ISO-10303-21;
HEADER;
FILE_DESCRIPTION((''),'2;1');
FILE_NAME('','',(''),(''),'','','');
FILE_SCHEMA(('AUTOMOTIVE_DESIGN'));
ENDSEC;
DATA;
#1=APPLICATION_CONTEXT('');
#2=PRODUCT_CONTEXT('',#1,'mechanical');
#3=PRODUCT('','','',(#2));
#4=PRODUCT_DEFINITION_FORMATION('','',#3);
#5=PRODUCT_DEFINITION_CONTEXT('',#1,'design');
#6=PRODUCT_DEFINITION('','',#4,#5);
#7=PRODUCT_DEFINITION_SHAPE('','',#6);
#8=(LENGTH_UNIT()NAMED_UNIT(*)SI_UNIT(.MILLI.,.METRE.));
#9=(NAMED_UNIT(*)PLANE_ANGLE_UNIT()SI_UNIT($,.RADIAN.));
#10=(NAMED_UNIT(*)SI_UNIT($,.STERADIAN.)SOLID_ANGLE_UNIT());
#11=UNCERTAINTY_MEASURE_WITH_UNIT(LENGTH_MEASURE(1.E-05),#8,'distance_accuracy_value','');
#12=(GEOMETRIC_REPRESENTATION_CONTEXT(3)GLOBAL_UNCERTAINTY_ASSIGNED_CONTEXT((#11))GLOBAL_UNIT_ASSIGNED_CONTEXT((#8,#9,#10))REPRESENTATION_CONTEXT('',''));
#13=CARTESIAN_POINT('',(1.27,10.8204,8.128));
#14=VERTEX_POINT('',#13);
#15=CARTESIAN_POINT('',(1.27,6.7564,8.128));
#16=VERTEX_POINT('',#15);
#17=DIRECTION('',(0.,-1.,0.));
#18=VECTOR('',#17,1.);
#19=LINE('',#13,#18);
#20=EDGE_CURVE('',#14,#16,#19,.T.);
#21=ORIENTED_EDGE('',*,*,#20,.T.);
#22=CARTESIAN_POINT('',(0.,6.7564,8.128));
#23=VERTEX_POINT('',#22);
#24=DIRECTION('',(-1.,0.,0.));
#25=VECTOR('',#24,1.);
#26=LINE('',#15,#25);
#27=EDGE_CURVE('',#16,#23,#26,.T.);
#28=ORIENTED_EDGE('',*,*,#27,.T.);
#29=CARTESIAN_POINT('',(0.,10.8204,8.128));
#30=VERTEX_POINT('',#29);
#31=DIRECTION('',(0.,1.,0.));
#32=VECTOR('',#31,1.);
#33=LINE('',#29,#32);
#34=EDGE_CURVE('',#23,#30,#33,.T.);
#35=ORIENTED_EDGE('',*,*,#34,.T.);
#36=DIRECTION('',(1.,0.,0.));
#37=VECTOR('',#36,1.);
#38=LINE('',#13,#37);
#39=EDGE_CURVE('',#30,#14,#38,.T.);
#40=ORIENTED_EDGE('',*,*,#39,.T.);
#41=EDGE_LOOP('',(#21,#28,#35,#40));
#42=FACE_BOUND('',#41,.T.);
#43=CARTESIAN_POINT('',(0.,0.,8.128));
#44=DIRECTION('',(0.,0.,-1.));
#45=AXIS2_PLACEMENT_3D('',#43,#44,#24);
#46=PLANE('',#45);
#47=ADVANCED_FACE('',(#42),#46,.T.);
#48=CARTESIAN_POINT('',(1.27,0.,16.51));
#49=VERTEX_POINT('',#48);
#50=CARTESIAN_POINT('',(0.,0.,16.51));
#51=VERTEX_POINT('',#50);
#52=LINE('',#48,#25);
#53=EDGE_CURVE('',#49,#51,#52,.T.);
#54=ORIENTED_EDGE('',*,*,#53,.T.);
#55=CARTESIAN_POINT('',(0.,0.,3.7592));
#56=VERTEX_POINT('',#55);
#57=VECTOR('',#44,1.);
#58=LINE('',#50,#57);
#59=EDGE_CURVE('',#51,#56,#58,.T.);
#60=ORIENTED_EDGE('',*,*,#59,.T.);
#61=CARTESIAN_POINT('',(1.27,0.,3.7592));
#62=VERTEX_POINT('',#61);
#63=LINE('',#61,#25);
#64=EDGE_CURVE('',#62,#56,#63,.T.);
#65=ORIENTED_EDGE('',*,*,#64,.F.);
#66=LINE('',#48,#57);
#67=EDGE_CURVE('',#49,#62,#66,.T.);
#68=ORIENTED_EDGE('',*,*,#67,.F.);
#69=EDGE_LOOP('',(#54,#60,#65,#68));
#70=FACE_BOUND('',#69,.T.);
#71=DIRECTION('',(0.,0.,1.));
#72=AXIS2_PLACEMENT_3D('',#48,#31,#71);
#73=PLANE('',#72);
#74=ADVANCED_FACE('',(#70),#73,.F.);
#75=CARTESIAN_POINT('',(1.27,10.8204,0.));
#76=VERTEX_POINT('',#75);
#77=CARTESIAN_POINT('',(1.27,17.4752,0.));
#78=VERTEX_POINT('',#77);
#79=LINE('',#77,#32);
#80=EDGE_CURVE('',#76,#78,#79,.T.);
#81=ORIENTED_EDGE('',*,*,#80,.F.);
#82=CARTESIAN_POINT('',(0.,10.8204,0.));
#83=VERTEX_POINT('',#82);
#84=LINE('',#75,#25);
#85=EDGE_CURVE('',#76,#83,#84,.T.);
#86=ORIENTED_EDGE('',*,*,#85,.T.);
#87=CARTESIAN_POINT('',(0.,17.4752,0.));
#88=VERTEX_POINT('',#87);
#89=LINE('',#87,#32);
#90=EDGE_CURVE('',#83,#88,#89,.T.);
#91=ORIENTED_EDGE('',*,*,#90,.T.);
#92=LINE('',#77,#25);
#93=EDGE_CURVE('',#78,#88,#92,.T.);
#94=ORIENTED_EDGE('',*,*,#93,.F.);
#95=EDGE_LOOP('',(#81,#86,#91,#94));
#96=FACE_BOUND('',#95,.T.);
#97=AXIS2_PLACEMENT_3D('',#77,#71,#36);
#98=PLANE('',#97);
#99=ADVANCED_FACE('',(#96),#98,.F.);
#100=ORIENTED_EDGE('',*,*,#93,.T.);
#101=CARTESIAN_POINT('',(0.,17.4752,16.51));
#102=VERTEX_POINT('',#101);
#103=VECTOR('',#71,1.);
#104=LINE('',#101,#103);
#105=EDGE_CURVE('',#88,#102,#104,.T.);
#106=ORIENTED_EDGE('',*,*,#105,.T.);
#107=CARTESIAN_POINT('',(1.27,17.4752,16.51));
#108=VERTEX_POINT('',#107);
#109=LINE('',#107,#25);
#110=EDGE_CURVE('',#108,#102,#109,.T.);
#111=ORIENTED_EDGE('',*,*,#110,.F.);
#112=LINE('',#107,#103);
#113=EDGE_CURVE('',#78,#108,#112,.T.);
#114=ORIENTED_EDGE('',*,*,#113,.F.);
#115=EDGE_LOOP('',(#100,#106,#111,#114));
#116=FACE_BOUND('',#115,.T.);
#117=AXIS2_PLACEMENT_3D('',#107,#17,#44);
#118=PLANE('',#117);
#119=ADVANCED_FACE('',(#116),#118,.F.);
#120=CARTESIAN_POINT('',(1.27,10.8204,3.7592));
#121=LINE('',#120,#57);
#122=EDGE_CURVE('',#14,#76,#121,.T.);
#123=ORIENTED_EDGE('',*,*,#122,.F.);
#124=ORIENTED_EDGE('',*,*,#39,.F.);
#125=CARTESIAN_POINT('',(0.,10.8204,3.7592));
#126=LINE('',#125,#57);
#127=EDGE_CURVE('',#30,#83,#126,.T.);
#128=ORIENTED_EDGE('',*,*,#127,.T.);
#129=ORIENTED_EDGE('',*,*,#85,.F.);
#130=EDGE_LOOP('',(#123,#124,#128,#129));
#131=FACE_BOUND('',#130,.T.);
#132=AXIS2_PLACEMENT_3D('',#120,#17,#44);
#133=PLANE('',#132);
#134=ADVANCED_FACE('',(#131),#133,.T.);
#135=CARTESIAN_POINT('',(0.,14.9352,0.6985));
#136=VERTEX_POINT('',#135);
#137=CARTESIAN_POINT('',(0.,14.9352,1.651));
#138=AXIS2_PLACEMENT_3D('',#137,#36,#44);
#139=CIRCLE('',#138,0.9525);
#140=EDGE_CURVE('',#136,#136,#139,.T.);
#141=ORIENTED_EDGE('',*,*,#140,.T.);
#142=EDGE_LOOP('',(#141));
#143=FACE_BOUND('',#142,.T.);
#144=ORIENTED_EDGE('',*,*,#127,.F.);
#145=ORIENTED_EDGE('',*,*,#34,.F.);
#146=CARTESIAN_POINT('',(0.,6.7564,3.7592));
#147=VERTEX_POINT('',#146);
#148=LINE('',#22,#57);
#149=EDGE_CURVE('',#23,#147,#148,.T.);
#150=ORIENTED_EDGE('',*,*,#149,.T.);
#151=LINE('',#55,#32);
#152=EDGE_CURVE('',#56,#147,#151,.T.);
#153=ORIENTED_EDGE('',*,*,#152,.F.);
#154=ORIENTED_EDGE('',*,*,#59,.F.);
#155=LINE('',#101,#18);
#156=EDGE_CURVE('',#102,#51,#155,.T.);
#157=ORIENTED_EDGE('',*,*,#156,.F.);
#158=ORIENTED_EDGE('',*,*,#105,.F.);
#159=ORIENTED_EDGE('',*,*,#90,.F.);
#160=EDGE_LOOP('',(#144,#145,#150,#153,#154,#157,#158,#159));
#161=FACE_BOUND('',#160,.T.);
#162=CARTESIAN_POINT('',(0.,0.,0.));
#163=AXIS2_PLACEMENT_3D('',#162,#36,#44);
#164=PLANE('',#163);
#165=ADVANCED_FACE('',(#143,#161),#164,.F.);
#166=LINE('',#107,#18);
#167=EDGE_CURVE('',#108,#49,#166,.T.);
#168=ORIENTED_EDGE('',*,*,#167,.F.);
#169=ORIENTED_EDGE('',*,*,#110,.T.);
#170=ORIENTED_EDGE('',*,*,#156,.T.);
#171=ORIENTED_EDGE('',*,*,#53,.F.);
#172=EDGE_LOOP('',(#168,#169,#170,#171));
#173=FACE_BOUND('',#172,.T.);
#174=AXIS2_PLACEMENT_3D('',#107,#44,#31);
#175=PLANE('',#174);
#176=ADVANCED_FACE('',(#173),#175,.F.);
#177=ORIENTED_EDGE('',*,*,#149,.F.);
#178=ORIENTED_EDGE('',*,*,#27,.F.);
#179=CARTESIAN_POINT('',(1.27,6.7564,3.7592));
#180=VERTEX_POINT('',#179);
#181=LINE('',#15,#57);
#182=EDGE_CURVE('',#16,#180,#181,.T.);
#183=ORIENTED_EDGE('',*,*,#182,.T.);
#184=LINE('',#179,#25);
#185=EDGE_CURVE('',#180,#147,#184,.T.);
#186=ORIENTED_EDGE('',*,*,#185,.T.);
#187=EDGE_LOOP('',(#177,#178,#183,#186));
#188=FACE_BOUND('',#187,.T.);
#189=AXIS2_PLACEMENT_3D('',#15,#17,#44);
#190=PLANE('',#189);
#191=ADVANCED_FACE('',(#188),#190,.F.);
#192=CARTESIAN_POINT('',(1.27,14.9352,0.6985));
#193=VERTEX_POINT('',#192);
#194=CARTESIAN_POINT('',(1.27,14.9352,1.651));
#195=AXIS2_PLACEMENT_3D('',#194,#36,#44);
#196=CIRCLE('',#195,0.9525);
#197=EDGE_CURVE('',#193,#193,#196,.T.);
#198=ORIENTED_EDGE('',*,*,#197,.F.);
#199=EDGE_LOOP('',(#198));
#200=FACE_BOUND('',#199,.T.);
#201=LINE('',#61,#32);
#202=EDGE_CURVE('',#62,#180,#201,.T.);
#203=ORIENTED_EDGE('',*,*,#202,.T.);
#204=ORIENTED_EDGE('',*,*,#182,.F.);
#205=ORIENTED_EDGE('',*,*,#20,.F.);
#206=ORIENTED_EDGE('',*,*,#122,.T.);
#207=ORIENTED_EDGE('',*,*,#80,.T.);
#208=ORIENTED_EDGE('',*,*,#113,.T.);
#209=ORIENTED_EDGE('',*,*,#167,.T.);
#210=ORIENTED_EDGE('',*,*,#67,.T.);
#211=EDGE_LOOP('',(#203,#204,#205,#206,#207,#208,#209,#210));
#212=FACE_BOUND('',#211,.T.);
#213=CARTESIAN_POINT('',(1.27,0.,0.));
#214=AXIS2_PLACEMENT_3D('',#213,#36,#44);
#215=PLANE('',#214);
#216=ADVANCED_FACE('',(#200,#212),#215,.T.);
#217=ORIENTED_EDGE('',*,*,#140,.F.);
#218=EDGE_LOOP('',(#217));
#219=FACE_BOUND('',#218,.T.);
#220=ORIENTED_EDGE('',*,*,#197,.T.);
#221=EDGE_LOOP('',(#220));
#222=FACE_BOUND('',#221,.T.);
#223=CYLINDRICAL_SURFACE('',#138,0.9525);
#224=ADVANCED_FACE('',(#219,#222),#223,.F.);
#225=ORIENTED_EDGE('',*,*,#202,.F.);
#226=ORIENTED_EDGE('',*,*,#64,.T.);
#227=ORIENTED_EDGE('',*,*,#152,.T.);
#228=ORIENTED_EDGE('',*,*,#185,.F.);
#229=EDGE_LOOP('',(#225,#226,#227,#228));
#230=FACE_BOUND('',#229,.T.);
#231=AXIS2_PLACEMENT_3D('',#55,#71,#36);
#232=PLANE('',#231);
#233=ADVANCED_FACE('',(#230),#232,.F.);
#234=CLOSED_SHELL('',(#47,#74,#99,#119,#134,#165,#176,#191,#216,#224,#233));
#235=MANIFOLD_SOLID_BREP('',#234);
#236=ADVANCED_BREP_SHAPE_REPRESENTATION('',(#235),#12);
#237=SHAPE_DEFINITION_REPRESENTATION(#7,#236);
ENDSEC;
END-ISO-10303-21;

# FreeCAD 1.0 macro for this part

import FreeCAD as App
import Part
import Sketcher
from FreeCAD import Vector
Q = App.Units.Quantity

doc = App.newDocument("Part")
params = doc.addObject("Spreadsheet::Sheet", "Params")
for row, (alias, value) in enumerate([
    ("sketch1_height", "0.65 in"),
    ("sketch1_width", "0.688 in"),
    ("pad1_length", "0.05 in"),
    ("sketch2_diameter", "0.075 in"),
    ("sketch3_width", "0.05 in"),
    ("sketch3_height", "0.426 in"),
    ("pocket2_length", "0.148 in"),
    ("sketch4_width", "0.05 in"),
    ("sketch4_height", "0.16 in"),
    ("pocket3_length", "0.172 in"),
], start=1):
    params.set(f"A{row}", alias)
    params.set(f"B{row}", "=" + value)
    params.setAlias(f"B{row}", alias)

body = doc.addObject("PartDesign::Body", "Body")

# Sketch on YZ plane
sketch1 = doc.addObject("Sketcher::SketchObject", "Sketch")
body.addObject(sketch1)
sketch1.AttachmentSupport = (doc.YZ_Plane, [""])
sketch1.MapMode = "FlatFace"
sketch1.addGeometry([
    Part.LineSegment(Vector(17, 17, 0), Vector(0, 17, 0)),
    Part.LineSegment(Vector(0, 17, 0), Vector(0, 0, 0)),
    Part.LineSegment(Vector(0, 0, 0), Vector(17, 0, 0)),
    Part.LineSegment(Vector(17, 0, 0), Vector(17, 17, 0)),
], False)
sketch1.addConstraint([
    Sketcher.Constraint("Coincident", 0, 2, 1, 1),
    Sketcher.Constraint("Coincident", 1, 2, 2, 1),
    Sketcher.Constraint("Coincident", 2, 2, 3, 1),
    Sketcher.Constraint("Coincident", 3, 2, 0, 1),
    Sketcher.Constraint("Horizontal", 0),
    Sketcher.Constraint("Vertical", 1),
    Sketcher.Constraint("Horizontal", 2),
    Sketcher.Constraint("Vertical", 3),
    Sketcher.Constraint("Coincident", 1, 2, -1, 1),
    Sketcher.Constraint("DistanceY", 1, 2, 1, 1, Q("0.65 in")),
    Sketcher.Constraint("DistanceX", 0, 2, 0, 1, Q("0.688 in")),
])
sketch1.setExpression("Constraints[9]", "Params.sketch1_height")
sketch1.setExpression("Constraints[10]", "Params.sketch1_width")
pad1 = doc.addObject("PartDesign::Pad", "Pad")
body.addObject(pad1)
pad1.Profile = sketch1
pad1.setExpression("Length", "Params.pad1_length")

# Sketch on YZ plane
sketch2 = doc.addObject("Sketcher::SketchObject", "Sketch001")
body.addObject(sketch2)
sketch2.AttachmentSupport = (doc.YZ_Plane, [""])
sketch2.MapMode = "FlatFace"
sketch2.AttachmentOffset = App.Placement(Vector(0, 0, 0.05 * 25.4), App.Rotation())
sketch2.addGeometry(Part.Circle(Vector(14.9, 1.7, 0), Vector(0, 0, 1), 1), False)
sketch2.addConstraint([
    Sketcher.Constraint("Diameter", 0, Q("0.075 in")),
    Sketcher.Constraint("DistanceX", -1, 1, 0, 3, Q("0.588 in")),
    Sketcher.Constraint("DistanceY", -1, 1, 0, 3, Q("0.065 in")),
])
sketch2.setExpression("Constraints[0]", "Params.sketch2_diameter")
pocket1 = doc.addObject("PartDesign::Pocket", "Pocket")
body.addObject(pocket1)
pocket1.Profile = sketch2
pocket1.Type = "ThroughAll"

# Sketch on XY plane
sketch3 = doc.addObject("Sketcher::SketchObject", "Sketch002")
body.addObject(sketch3)
sketch3.AttachmentSupport = (doc.XY_Plane, [""])
sketch3.MapMode = "FlatFace"
sketch3.addGeometry([
    Part.LineSegment(Vector(1.3, 10.8, 0), Vector(1.3, 0, 0)),
    Part.LineSegment(Vector(1.3, 0, 0), Vector(0, 0, 0)),
    Part.LineSegment(Vector(0, 0, 0), Vector(0, 10.8, 0)),
    Part.LineSegment(Vector(0, 10.8, 0), Vector(1.3, 10.8, 0)),
], False)
sketch3.addConstraint([
    Sketcher.Constraint("Coincident", 0, 2, 1, 1),
    Sketcher.Constraint("Coincident", 1, 2, 2, 1),
    Sketcher.Constraint("Coincident", 2, 2, 3, 1),
    Sketcher.Constraint("Coincident", 3, 2, 0, 1),
    Sketcher.Constraint("Vertical", 0),
    Sketcher.Constraint("Horizontal", 1),
    Sketcher.Constraint("Vertical", 2),
    Sketcher.Constraint("Horizontal", 3),
    Sketcher.Constraint("Coincident", 1, 2, -1, 1),
    Sketcher.Constraint("DistanceX", 1, 2, 1, 1, Q("0.05 in")),
    Sketcher.Constraint("DistanceY", 0, 2, 0, 1, Q("0.426 in")),
])
sketch3.setExpression("Constraints[9]", "Params.sketch3_width")
sketch3.setExpression("Constraints[10]", "Params.sketch3_height")
pocket2 = doc.addObject("PartDesign::Pocket", "Pocket001")
body.addObject(pocket2)
pocket2.Profile = sketch3
pocket2.setExpression("Length", "Params.pocket2_length")
pocket2.Reversed = True

# Sketch on XY plane
sketch4 = doc.addObject("Sketcher::SketchObject", "Sketch003")
body.addObject(sketch4)
sketch4.AttachmentSupport = (doc.XY_Plane, [""])
sketch4.MapMode = "FlatFace"
sketch4.AttachmentOffset = App.Placement(Vector(0, 0, 0.148 * 25.4), App.Rotation())
sketch4.addGeometry([
    Part.LineSegment(Vector(1.3, 10.8, 0), Vector(1.3, 6.8, 0)),
    Part.LineSegment(Vector(1.3, 6.8, 0), Vector(0, 6.8, 0)),
    Part.LineSegment(Vector(0, 6.8, 0), Vector(0, 10.8, 0)),
    Part.LineSegment(Vector(0, 10.8, 0), Vector(1.3, 10.8, 0)),
], False)
sketch4.addConstraint([
    Sketcher.Constraint("Coincident", 0, 2, 1, 1),
    Sketcher.Constraint("Coincident", 1, 2, 2, 1),
    Sketcher.Constraint("Coincident", 2, 2, 3, 1),
    Sketcher.Constraint("Coincident", 3, 2, 0, 1),
    Sketcher.Constraint("Vertical", 0),
    Sketcher.Constraint("Horizontal", 1),
    Sketcher.Constraint("Vertical", 2),
    Sketcher.Constraint("Horizontal", 3),
    Sketcher.Constraint("PointOnObject", 1, 2, -2),
    Sketcher.Constraint("DistanceX", 1, 2, 1, 1, Q("0.05 in")),
    Sketcher.Constraint("DistanceY", 0, 2, 0, 1, Q("0.16 in")),
    Sketcher.Constraint("DistanceY", -1, 1, 0, 2, Q("0.266 in")),
])
sketch4.setExpression("Constraints[9]", "Params.sketch4_width")
sketch4.setExpression("Constraints[10]", "Params.sketch4_height")
pocket3 = doc.addObject("PartDesign::Pocket", "Pocket002")
body.addObject(pocket3)
pocket3.Profile = sketch4
pocket3.setExpression("Length", "Params.pocket3_length")
pocket3.Reversed = True

doc.recompute()
